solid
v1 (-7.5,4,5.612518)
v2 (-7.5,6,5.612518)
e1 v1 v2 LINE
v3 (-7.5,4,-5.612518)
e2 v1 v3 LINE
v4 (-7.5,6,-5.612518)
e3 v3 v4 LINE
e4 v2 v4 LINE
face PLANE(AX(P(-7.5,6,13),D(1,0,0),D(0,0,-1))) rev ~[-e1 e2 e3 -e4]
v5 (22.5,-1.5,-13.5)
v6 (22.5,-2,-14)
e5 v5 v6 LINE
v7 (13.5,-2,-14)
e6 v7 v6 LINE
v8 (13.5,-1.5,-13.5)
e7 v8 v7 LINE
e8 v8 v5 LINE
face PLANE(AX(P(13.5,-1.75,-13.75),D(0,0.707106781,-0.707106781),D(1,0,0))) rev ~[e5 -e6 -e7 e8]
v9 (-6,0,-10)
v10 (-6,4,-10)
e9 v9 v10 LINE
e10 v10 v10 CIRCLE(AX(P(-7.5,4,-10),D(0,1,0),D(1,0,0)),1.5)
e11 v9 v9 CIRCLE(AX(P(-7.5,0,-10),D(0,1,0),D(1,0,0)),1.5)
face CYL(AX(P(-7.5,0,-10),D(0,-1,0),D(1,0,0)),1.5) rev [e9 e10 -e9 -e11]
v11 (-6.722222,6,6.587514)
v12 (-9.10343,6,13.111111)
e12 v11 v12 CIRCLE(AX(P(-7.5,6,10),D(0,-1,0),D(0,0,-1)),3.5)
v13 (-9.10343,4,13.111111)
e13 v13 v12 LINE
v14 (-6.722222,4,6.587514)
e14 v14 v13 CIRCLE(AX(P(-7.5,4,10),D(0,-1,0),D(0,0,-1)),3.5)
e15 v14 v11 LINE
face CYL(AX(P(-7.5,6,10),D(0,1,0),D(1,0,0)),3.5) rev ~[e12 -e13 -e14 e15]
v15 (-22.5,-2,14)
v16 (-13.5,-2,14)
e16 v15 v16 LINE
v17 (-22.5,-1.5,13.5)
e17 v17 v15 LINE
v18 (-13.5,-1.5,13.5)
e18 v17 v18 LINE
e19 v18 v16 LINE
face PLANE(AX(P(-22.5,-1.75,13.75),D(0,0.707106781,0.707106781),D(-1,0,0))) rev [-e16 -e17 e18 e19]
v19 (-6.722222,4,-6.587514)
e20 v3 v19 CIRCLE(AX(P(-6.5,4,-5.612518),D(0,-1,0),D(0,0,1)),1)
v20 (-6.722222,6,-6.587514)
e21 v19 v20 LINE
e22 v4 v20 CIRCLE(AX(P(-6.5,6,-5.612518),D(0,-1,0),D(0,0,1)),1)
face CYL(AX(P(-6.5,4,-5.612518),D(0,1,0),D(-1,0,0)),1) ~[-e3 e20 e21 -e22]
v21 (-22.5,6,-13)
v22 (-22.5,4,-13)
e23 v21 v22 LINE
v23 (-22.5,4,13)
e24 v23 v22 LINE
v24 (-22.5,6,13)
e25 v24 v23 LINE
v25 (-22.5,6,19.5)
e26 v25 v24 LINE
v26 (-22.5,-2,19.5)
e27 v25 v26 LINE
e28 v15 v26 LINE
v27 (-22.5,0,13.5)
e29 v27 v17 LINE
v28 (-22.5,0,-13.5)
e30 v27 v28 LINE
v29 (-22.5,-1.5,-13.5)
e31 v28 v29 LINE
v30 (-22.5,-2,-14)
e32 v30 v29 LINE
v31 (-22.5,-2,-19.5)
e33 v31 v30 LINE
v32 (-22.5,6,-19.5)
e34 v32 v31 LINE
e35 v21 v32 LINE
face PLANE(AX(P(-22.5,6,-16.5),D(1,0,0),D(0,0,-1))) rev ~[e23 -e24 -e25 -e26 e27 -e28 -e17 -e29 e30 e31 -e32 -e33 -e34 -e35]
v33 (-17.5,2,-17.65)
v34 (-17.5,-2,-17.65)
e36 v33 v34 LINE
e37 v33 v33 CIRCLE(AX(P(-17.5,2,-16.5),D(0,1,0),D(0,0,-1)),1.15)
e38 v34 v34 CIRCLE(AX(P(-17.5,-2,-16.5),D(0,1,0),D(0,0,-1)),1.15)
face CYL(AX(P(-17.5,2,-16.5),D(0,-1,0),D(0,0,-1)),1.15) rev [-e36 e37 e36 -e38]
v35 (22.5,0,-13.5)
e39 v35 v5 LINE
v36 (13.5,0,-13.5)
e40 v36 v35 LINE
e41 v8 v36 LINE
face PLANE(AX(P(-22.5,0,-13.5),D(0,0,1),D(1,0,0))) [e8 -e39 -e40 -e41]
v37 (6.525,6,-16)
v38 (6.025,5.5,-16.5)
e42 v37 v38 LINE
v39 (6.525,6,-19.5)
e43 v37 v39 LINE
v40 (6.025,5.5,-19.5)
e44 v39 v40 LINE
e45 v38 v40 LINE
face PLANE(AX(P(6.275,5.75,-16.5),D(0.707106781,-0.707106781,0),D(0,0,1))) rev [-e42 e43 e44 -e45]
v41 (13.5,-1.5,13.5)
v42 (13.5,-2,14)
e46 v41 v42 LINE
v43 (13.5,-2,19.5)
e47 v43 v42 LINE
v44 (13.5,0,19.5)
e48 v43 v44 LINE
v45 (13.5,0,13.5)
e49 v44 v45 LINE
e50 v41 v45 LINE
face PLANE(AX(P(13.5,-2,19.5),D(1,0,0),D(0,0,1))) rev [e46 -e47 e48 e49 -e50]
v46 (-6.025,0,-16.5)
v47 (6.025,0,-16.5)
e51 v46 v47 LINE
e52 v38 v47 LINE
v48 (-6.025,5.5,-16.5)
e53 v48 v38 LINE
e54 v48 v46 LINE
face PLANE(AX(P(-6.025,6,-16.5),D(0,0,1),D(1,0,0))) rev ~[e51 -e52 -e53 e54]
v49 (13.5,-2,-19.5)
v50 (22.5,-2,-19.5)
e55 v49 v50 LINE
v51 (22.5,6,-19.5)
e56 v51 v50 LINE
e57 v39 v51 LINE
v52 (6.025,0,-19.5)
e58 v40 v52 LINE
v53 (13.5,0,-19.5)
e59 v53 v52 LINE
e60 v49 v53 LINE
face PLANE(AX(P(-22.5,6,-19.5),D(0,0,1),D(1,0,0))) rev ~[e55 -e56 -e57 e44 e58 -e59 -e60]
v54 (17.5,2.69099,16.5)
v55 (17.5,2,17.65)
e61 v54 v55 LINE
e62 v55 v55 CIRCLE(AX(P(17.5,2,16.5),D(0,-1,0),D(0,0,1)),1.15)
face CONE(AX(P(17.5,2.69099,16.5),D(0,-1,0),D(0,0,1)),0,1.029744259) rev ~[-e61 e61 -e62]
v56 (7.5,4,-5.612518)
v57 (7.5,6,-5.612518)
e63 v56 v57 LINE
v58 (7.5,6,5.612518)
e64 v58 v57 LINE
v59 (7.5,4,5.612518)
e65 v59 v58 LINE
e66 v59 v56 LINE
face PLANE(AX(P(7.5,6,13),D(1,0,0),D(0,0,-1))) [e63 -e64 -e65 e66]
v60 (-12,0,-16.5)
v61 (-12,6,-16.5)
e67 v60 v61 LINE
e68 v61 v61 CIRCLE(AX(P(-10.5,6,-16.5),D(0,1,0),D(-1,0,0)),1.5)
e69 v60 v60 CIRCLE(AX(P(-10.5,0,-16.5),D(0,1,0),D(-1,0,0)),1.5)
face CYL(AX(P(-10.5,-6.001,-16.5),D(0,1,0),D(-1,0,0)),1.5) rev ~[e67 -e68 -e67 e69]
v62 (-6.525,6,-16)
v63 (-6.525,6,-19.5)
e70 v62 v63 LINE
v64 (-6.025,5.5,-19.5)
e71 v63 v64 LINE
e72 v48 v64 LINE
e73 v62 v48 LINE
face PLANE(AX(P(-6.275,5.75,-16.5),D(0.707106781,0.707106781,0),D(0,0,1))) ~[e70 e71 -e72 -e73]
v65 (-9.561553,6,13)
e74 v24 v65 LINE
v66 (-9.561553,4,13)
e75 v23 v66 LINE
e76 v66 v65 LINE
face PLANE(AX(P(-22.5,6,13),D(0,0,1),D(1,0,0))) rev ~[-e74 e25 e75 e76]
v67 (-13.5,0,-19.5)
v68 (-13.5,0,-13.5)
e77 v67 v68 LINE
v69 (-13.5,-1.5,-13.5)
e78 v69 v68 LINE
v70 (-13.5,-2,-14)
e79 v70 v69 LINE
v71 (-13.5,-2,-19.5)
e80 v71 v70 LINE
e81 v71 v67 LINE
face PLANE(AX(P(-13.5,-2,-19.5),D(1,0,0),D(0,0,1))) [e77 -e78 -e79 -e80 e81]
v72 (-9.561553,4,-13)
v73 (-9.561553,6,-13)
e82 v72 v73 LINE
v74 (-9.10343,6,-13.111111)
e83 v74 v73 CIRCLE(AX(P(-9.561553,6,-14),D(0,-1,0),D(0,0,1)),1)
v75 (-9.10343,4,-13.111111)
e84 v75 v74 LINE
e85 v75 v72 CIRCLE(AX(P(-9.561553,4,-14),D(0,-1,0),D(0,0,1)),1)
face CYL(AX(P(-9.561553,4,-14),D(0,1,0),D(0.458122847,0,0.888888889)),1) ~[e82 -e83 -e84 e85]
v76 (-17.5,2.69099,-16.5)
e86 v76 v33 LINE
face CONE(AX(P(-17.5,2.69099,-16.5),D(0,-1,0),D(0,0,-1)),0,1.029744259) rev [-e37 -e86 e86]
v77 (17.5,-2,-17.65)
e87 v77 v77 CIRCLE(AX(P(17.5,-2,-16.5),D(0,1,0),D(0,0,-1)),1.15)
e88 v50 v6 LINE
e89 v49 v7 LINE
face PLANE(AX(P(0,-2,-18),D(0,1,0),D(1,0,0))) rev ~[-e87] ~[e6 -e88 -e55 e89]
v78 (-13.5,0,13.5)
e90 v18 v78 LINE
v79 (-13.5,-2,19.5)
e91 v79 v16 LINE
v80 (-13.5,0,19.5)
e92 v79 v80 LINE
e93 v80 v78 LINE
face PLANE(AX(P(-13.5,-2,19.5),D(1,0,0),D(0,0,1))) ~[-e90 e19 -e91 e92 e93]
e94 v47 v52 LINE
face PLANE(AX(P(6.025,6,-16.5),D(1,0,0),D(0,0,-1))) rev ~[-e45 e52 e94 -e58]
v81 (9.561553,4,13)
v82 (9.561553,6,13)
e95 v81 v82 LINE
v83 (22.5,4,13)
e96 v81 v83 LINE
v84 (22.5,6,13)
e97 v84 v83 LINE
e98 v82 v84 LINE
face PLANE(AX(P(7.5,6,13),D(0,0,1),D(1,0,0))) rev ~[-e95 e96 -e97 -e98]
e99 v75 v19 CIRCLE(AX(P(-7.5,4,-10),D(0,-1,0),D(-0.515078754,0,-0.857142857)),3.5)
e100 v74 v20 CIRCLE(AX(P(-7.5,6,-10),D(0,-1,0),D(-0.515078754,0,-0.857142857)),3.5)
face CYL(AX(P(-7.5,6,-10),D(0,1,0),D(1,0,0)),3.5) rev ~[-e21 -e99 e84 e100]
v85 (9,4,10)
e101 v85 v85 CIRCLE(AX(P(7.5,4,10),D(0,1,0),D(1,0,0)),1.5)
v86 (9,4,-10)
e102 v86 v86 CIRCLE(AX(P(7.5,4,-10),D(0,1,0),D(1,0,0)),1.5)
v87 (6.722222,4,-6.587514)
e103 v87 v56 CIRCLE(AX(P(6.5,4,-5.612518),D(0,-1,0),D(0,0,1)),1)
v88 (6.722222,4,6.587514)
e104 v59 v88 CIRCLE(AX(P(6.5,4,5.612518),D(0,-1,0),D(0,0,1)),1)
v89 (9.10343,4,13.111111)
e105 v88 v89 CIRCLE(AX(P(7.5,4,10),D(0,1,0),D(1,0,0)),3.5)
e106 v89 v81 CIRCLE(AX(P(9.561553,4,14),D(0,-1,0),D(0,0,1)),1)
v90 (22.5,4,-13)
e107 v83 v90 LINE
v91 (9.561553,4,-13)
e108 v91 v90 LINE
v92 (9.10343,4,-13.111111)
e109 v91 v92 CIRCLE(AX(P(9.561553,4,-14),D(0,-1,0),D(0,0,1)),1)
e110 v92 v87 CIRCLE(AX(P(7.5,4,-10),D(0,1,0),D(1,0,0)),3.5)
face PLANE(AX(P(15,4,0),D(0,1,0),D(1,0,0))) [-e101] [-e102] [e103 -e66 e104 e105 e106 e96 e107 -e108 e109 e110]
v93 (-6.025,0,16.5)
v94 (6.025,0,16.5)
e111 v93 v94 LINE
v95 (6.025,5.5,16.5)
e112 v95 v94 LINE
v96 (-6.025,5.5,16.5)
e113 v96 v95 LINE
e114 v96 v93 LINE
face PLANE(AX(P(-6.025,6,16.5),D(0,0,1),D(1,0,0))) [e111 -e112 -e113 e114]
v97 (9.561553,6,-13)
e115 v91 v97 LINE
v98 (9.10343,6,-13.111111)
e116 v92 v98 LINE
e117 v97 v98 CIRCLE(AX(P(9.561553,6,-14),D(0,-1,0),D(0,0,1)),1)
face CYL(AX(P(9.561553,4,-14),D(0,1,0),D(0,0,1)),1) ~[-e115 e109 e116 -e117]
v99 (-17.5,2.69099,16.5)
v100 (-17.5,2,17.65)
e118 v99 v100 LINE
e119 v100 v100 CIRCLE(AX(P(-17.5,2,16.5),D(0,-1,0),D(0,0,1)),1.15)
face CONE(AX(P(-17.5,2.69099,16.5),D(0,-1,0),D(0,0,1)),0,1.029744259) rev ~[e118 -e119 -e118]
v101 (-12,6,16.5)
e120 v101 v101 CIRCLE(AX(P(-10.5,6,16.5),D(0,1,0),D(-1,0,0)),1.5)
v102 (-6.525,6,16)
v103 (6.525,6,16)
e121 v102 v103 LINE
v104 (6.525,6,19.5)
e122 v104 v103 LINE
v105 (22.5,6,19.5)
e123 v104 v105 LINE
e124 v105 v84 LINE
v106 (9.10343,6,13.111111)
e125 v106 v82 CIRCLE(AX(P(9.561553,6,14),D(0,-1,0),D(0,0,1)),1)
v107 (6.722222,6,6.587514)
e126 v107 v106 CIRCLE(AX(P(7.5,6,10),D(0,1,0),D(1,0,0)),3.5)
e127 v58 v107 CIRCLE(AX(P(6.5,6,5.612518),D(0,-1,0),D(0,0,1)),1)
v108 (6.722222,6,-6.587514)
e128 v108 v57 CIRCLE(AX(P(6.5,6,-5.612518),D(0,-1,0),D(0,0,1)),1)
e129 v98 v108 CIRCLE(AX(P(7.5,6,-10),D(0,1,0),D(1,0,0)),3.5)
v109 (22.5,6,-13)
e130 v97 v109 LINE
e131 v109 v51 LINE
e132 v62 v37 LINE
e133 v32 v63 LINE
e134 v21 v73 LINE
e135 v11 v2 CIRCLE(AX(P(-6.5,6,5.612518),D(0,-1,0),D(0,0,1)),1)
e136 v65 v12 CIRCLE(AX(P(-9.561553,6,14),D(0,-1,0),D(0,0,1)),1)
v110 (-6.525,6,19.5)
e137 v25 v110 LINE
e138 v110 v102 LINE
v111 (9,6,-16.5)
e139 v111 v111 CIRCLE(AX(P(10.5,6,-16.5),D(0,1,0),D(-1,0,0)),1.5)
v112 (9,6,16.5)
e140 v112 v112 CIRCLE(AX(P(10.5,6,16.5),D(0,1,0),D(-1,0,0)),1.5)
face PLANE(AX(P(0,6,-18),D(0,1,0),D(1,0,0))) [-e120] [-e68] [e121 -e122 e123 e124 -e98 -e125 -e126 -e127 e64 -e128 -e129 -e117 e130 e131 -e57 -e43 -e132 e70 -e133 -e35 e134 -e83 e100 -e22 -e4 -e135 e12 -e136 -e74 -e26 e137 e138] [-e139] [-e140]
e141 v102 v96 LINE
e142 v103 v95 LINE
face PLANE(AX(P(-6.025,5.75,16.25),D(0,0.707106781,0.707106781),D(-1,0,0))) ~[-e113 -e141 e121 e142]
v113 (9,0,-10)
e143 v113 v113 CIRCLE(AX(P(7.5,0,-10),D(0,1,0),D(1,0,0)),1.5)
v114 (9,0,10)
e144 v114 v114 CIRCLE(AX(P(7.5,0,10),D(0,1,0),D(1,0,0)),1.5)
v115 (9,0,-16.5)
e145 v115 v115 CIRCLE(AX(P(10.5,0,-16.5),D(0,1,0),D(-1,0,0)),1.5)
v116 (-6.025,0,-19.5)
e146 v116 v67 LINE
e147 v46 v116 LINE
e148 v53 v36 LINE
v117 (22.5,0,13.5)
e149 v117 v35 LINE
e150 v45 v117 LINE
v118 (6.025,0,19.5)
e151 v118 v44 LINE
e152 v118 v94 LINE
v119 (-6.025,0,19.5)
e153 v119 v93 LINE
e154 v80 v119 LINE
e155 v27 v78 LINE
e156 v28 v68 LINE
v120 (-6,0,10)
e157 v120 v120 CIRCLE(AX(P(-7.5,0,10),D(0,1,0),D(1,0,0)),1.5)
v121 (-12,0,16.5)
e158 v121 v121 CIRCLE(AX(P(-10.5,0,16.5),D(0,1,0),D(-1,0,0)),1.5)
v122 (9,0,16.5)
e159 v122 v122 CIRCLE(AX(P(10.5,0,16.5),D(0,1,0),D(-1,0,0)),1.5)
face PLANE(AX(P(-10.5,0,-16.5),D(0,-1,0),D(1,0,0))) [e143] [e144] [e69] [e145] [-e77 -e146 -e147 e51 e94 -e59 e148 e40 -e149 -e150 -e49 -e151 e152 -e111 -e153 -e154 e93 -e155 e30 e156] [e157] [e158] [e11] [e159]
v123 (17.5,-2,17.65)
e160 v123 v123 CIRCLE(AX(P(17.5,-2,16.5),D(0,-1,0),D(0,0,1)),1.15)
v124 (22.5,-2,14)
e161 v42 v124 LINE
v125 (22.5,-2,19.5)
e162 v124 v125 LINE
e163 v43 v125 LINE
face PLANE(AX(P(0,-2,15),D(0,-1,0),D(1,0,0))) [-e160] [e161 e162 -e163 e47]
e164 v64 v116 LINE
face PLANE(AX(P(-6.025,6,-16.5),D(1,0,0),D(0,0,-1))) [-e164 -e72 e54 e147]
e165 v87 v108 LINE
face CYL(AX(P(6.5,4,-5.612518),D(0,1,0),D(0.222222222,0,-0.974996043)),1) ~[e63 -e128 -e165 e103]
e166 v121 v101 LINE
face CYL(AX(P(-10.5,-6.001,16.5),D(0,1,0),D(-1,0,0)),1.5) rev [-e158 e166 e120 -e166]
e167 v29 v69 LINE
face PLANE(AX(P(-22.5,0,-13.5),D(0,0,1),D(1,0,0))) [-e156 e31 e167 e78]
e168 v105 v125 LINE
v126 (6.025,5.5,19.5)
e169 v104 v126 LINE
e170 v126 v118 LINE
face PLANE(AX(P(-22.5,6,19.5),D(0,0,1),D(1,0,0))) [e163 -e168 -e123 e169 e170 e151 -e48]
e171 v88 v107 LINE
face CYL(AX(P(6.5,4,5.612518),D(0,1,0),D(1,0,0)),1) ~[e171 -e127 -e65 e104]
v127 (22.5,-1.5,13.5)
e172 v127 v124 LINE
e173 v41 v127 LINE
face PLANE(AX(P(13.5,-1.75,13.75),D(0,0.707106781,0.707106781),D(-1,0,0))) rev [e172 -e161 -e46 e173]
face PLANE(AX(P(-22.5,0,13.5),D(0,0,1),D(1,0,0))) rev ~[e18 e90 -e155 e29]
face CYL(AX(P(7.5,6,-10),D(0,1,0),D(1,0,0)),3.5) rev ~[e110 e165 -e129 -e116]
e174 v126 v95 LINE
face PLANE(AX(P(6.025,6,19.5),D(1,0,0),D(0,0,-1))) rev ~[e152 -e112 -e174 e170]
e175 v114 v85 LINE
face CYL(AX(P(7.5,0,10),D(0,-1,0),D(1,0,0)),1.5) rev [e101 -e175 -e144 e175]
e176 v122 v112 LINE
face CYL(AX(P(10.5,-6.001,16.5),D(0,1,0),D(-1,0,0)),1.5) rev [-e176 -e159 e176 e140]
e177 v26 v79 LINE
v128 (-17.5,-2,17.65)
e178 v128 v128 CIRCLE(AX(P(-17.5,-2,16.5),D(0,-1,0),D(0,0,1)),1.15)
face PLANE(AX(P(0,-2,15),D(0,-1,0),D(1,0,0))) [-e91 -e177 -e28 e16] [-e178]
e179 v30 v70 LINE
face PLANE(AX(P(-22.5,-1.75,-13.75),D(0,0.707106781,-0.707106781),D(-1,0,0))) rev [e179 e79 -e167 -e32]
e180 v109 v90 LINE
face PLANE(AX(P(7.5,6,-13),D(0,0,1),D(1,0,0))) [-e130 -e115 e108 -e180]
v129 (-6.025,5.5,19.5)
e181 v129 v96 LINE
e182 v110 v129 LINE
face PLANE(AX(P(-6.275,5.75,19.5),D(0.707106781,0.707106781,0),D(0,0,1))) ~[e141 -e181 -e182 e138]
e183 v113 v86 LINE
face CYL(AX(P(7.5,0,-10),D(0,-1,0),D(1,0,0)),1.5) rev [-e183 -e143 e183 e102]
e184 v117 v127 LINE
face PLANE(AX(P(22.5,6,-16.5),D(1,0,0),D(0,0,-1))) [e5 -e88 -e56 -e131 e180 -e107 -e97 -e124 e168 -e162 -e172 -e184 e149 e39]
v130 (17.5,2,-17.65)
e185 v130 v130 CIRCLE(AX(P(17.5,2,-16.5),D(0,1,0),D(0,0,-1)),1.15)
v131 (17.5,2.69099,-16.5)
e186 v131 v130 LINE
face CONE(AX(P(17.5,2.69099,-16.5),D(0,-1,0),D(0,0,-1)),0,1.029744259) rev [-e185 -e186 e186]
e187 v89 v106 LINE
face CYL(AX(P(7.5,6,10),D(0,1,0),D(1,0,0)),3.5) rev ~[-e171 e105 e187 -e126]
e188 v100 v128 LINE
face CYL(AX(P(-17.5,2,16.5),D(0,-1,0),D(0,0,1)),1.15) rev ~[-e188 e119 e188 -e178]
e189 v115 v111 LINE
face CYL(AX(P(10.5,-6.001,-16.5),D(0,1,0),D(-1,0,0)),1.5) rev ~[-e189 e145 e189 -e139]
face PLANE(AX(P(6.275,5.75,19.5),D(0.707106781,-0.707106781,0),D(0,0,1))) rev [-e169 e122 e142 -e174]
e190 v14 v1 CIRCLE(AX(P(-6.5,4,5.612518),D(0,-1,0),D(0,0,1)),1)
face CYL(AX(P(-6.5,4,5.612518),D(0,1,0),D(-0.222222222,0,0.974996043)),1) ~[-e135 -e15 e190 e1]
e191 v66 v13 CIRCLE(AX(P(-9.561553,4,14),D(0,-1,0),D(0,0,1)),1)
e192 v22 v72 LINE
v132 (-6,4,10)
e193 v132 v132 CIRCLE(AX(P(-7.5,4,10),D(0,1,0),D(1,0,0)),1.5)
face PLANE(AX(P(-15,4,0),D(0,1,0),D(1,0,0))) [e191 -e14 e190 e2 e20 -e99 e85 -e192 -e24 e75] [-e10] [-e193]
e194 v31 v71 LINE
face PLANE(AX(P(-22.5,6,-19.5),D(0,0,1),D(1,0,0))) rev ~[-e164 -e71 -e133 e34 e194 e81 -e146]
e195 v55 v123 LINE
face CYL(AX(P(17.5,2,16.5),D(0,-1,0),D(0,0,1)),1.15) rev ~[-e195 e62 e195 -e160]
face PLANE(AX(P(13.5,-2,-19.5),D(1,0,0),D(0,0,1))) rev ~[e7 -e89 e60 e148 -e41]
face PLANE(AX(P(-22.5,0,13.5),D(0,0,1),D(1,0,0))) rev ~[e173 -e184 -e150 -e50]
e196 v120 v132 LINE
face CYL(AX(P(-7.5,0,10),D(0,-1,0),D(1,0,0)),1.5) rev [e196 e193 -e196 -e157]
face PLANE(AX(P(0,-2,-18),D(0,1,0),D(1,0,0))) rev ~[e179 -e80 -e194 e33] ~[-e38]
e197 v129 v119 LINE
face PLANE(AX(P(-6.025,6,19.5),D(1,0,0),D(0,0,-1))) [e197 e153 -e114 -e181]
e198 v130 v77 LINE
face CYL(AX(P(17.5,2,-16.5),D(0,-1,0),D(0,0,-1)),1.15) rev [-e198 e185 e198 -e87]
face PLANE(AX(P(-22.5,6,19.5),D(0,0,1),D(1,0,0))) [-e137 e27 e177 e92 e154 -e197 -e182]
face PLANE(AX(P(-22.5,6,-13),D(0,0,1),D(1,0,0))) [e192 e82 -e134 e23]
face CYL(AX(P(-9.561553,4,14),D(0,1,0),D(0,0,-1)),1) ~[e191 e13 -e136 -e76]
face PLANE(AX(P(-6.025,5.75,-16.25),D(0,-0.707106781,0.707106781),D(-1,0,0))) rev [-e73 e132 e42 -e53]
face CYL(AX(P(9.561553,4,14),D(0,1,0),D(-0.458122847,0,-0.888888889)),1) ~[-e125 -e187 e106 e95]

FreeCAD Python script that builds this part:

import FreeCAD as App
import Part
import Sketcher

V = App.Vector
Q = App.Units.Quantity


def edges_at(feature, points):
    """Names of the edges that pass closest to the given points."""
    edges = feature.Shape.Edges
    near = lambda p: min(range(len(edges)), key=lambda i: edges[i].distToShape(Part.Vertex(*p))[0])
    return sorted({f"Edge{near(p) + 1}" for p in points})

doc = App.newDocument("Part")
params = doc.addObject("Spreadsheet::Sheet", "Params")
for row, (alias, value) in enumerate([
    ("sketch1_diameter", "3 mm"),
    ("sketch1_width", "45 mm"),
    ("sketch1_height", "33 mm"),
    ("pad1_length", "6 mm"),
    ("sketch2_width", "45 mm"),
    ("sketch2_height", "3 mm"),
    ("pad2_length", "2 mm"),
    ("sketch3_diameter", "7 mm"),
    ("pocket1_length", "2 mm"),
    ("sketch4_width", "45 mm"),
    ("sketch4_height", "3 mm"),
    ("pad3_length", "8 mm"),
    ("sketch5_height", "3 mm"),
    ("sketch5_width", "12.05 mm"),
    ("sketch6_height", "3 mm"),
    ("sketch6_width", "12.05 mm"),
    ("chamfer_size", "0.5 mm"),
    ("sketch7_width", "4 mm"),
    ("sketch7_height", "1.15 mm"),
    ("groove_angle", "360 deg"),
    ("sketch8_width", "4 mm"),
    ("sketch8_height", "1.15 mm"),
    ("groove2_angle", "360 deg"),
    ("sketch9_width", "6 mm"),
    ("pocket4_length", "2 mm"),
    ("sketch10_diameter", "3 mm"),
    ("hole_diameter", "3 mm"),
    ("hole_depth", "6.001 mm"),
    ("chamfer2_size", "0.5 mm"),
    ("sketch11_width", "15 mm"),
    ("sketch11_height", "26 mm"),
    ("pocket5_length", "2 mm"),
    ("fillet_radius", "1 mm"),
    ("sketch12_width", "15 mm"),
    ("sketch12_height", "6 mm"),
    ("pocket6_length", "2 mm"),
], start=1):
    params.set(f"A{row}", alias)
    params.set(f"B{row}", "=" + value)
    params.setAlias(f"B{row}", alias)

body = doc.addObject("PartDesign::Body", "Body")

# Sketch on XZ plane
sketch1 = body.newObject("Sketcher::SketchObject", "Sketch")
sketch1.AttachmentSupport = (doc.getObject("XZ_Plane"), [""])
sketch1.MapMode = "FlatFace"
sketch1.addGeometry([
    Part.LineSegment(V(-22.5, -16.5, 0), V(-22.5, 16.5, 0)),  # 0
    Part.LineSegment(V(-22.5, 16.5, 0), V(22.5, 16.5, 0)),  # 1
    Part.LineSegment(V(22.5, 16.5, 0), V(22.5, -16.5, 0)),  # 2
    Part.LineSegment(V(22.5, -16.5, 0), V(-22.5, -16.5, 0)),  # 3
    Part.Circle(V(-7.5, 10, 0), V(0, 0, 1), 1.5),  # 4
    Part.Circle(V(7.5, 10, 0), V(0, 0, 1), 1.5),  # 5
    Part.Circle(V(-7.5, -10, 0), V(0, 0, 1), 1.5),  # 6
    Part.Circle(V(7.5, -10, 0), V(0, 0, 1), 1.5),  # 7
], False)
sketch1.addConstraint([
    Sketcher.Constraint("Coincident", 0, 2, 1, 1),
    Sketcher.Constraint("Coincident", 1, 2, 2, 1),
    Sketcher.Constraint("Coincident", 2, 2, 3, 1),
    Sketcher.Constraint("Coincident", 3, 2, 0, 1),
    Sketcher.Constraint("Vertical", 0),
    Sketcher.Constraint("Horizontal", 1),
    Sketcher.Constraint("Vertical", 2),
    Sketcher.Constraint("Horizontal", 3),
    Sketcher.Constraint("Equal", 4, 5),
    Sketcher.Constraint("Equal", 5, 6),
    Sketcher.Constraint("Equal", 6, 7),
    Sketcher.Constraint("Symmetric", 5, 3, 6, 3, -1, 1),
    Sketcher.Constraint("Symmetric", 4, 3, 7, 3, -1, 1),
    Sketcher.Constraint("Symmetric", 0, 2, 2, 2, -1, 1),
    Sketcher.Constraint("Symmetric", 4, 3, 5, 3, -2),
    Sketcher.Constraint("Diameter", 4, 3.0),
    Sketcher.Constraint("DistanceX", 1, 1, 1, 2, 45.0),
    Sketcher.Constraint("DistanceY", 0, 1, 0, 2, 33.0),
    Sketcher.Constraint("DistanceY", -1, 1, 4, 3, 10.0),
    Sketcher.Constraint("DistanceX", 4, 3, 5, 3, 15.0),
])
sketch1.setExpression("Constraints[15]", "Params.sketch1_diameter")
sketch1.setExpression("Constraints[16]", "Params.sketch1_width")
sketch1.setExpression("Constraints[17]", "Params.sketch1_height")
pad1 = body.newObject("PartDesign::Pad", "Pad")
pad1.Profile = sketch1
pad1.setExpression("Length", "Params.pad1_length")
pad1.Reversed = True

# Sketch on XZ plane
sketch2 = body.newObject("Sketcher::SketchObject", "Sketch001")
sketch2.AttachmentSupport = (doc.getObject("XZ_Plane"), [""])
sketch2.MapMode = "FlatFace"
sketch2.addGeometry([
    Part.LineSegment(V(-22.5, -13.5, 0), V(-22.5, -16.5, 0)),  # 0
    Part.LineSegment(V(-22.5, -16.5, 0), V(22.5, -16.5, 0)),  # 1
    Part.LineSegment(V(22.5, -16.5, 0), V(22.5, -13.5, 0)),  # 2
    Part.LineSegment(V(22.5, -13.5, 0), V(-22.5, -13.5, 0)),  # 3
    Part.LineSegment(V(-22.5, 16.5, 0), V(-22.5, 13.5, 0)),  # 4
    Part.LineSegment(V(-22.5, 13.5, 0), V(22.5, 13.5, 0)),  # 5
    Part.LineSegment(V(22.5, 13.5, 0), V(22.5, 16.5, 0)),  # 6
    Part.LineSegment(V(22.5, 16.5, 0), V(-22.5, 16.5, 0)),  # 7
], False)
sketch2.addConstraint([
    Sketcher.Constraint("Coincident", 0, 2, 1, 1),
    Sketcher.Constraint("Coincident", 1, 2, 2, 1),
    Sketcher.Constraint("Coincident", 2, 2, 3, 1),
    Sketcher.Constraint("Coincident", 3, 2, 0, 1),
    Sketcher.Constraint("Coincident", 4, 2, 5, 1),
    Sketcher.Constraint("Coincident", 5, 2, 6, 1),
    Sketcher.Constraint("Coincident", 6, 2, 7, 1),
    Sketcher.Constraint("Coincident", 7, 2, 4, 1),
    Sketcher.Constraint("Vertical", 0),
    Sketcher.Constraint("Horizontal", 1),
    Sketcher.Constraint("Vertical", 2),
    Sketcher.Constraint("Horizontal", 3),
    Sketcher.Constraint("Vertical", 4),
    Sketcher.Constraint("Horizontal", 5),
    Sketcher.Constraint("Vertical", 6),
    Sketcher.Constraint("Horizontal", 7),
    Sketcher.Constraint("Symmetric", 2, 2, 4, 2, -1, 1),
    Sketcher.Constraint("Symmetric", 0, 2, 6, 2, -1, 1),
    Sketcher.Constraint("Vertical", 3, 2, 4, 2),
    Sketcher.Constraint("DistanceX", 1, 1, 1, 2, 45.0),
    Sketcher.Constraint("DistanceY", 0, 2, 0, 1, 3.0),
    Sketcher.Constraint("DistanceY", 3, 2, 4, 2, 27.0),
])
sketch2.setExpression("Constraints[19]", "Params.sketch2_width")
sketch2.setExpression("Constraints[20]", "Params.sketch2_height")
pad2 = body.newObject("PartDesign::Pad", "Pad001")
pad2.Profile = sketch2
pad2.setExpression("Length", "Params.pad2_length")

# Sketch on XZ plane
sketch3 = body.newObject("Sketcher::SketchObject", "Sketch002")
sketch3.AttachmentSupport = (doc.getObject("XZ_Plane"), [""])
sketch3.MapMode = "FlatFace"
sketch3.AttachmentOffset = App.Placement(V(0, 0, -6), App.Rotation())
sketch3.addGeometry([
    Part.Circle(V(-7.5, -10, 0), V(0, 0, 1), 3.5),
    Part.Circle(V(7.5, -10, 0), V(0, 0, 1), 3.5),
    Part.Circle(V(7.5, 10, 0), V(0, 0, 1), 3.5),
    Part.Circle(V(-7.5, 10, 0), V(0, 0, 1), 3.5),
], False)
sketch3.addConstraint([
    Sketcher.Constraint("Equal", 0, 1),
    Sketcher.Constraint("Equal", 1, 2),
    Sketcher.Constraint("Equal", 2, 3),
    Sketcher.Constraint("Symmetric", 0, 3, 2, 3, -1, 1),
    Sketcher.Constraint("Symmetric", 1, 3, 3, 3, -1, 1),
    Sketcher.Constraint("Symmetric", 0, 3, 1, 3, -2),
    Sketcher.Constraint("Diameter", 0, 7.0),
    Sketcher.Constraint("DistanceY", 0, 3, -1, 1, 10.0),
    Sketcher.Constraint("DistanceX", 0, 3, 1, 3, 15.0),
])
sketch3.setExpression("Constraints[6]", "Params.sketch3_diameter")
pocket1 = body.newObject("PartDesign::Pocket", "Pocket")
pocket1.Profile = sketch3
pocket1.setExpression("Length", "Params.pocket1_length")
pocket1.Reversed = True

# Sketch on XZ plane
sketch4 = body.newObject("Sketcher::SketchObject", "Sketch003")
sketch4.AttachmentSupport = (doc.getObject("XZ_Plane"), [""])
sketch4.MapMode = "FlatFace"
sketch4.AttachmentOffset = App.Placement(V(0, 0, -6), App.Rotation())
sketch4.addGeometry([
    Part.LineSegment(V(-22.5, -19.5, 0), V(-22.5, -16.5, 0)),  # 0
    Part.LineSegment(V(-22.5, -16.5, 0), V(22.5, -16.5, 0)),  # 1
    Part.LineSegment(V(22.5, -16.5, 0), V(22.5, -19.5, 0)),  # 2
    Part.LineSegment(V(22.5, -19.5, 0), V(-22.5, -19.5, 0)),  # 3
    Part.LineSegment(V(-22.5, 16.5, 0), V(-22.5, 19.5, 0)),  # 4
    Part.LineSegment(V(-22.5, 19.5, 0), V(22.5, 19.5, 0)),  # 5
    Part.LineSegment(V(22.5, 19.5, 0), V(22.5, 16.5, 0)),  # 6
    Part.LineSegment(V(22.5, 16.5, 0), V(-22.5, 16.5, 0)),  # 7
], False)
sketch4.addConstraint([
    Sketcher.Constraint("Coincident", 0, 2, 1, 1),
    Sketcher.Constraint("Coincident", 1, 2, 2, 1),
    Sketcher.Constraint("Coincident", 2, 2, 3, 1),
    Sketcher.Constraint("Coincident", 3, 2, 0, 1),
    Sketcher.Constraint("Coincident", 4, 2, 5, 1),
    Sketcher.Constraint("Coincident", 5, 2, 6, 1),
    Sketcher.Constraint("Coincident", 6, 2, 7, 1),
    Sketcher.Constraint("Coincident", 7, 2, 4, 1),
    Sketcher.Constraint("Vertical", 0),
    Sketcher.Constraint("Horizontal", 1),
    Sketcher.Constraint("Vertical", 2),
    Sketcher.Constraint("Horizontal", 3),
    Sketcher.Constraint("Vertical", 4),
    Sketcher.Constraint("Horizontal", 5),
    Sketcher.Constraint("Vertical", 6),
    Sketcher.Constraint("Horizontal", 7),
    Sketcher.Constraint("Symmetric", 2, 2, 4, 2, -1, 1),
    Sketcher.Constraint("Symmetric", 0, 2, 6, 2, -1, 1),
    Sketcher.Constraint("Vertical", 3, 2, 4, 2),
    Sketcher.Constraint("DistanceX", 1, 1, 1, 2, 45.0),
    Sketcher.Constraint("DistanceY", 0, 1, 0, 2, 3.0),
    Sketcher.Constraint("DistanceY", 0, 2, 4, 2, 36.0),
])
sketch4.setExpression("Constraints[19]", "Params.sketch4_width")
sketch4.setExpression("Constraints[20]", "Params.sketch4_height")
pad3 = body.newObject("PartDesign::Pad", "Pad002")
pad3.Profile = sketch4
pad3.setExpression("Length", "Params.pad3_length")

# Sketch on XZ plane
sketch5 = body.newObject("Sketcher::SketchObject", "Sketch004")
sketch5.AttachmentSupport = (doc.getObject("XZ_Plane"), [""])
sketch5.MapMode = "FlatFace"
sketch5.AttachmentOffset = App.Placement(V(0, 0, -6), App.Rotation())
sketch5.addGeometry([
    Part.LineSegment(V(-6.025, -19.5, 0), V(-6.025, -16.5, 0)),
    Part.LineSegment(V(-6.025, -16.5, 0), V(6.025, -16.5, 0)),
    Part.LineSegment(V(6.025, -16.5, 0), V(6.025, -19.5, 0)),
    Part.LineSegment(V(6.025, -19.5, 0), V(-6.025, -19.5, 0)),
], False)
sketch5.addConstraint([
    Sketcher.Constraint("Coincident", 0, 2, 1, 1),
    Sketcher.Constraint("Coincident", 1, 2, 2, 1),
    Sketcher.Constraint("Coincident", 2, 2, 3, 1),
    Sketcher.Constraint("Coincident", 3, 2, 0, 1),
    Sketcher.Constraint("Vertical", 0),
    Sketcher.Constraint("Horizontal", 1),
    Sketcher.Constraint("Vertical", 2),
    Sketcher.Constraint("Horizontal", 3),
    Sketcher.Constraint("DistanceY", 0, 1, 0, 2, 3.0),
    Sketcher.Constraint("DistanceX", 1, 1, 1, 2, 12.05),
    Sketcher.Constraint("DistanceY", 0, 2, -1, 1, 16.5),
    Sketcher.Constraint("DistanceX", 0, 2, -1, 1, 6.025),
])
sketch5.setExpression("Constraints[8]", "Params.sketch5_height")
sketch5.setExpression("Constraints[9]", "Params.sketch5_width")
pocket2 = body.newObject("PartDesign::Pocket", "Pocket001")
pocket2.Profile = sketch5
pocket2.Type = "UpToFirst"
pocket2.Reversed = True

# Sketch on XZ plane
sketch6 = body.newObject("Sketcher::SketchObject", "Sketch005")
sketch6.AttachmentSupport = (doc.getObject("XZ_Plane"), [""])
sketch6.MapMode = "FlatFace"
sketch6.AttachmentOffset = App.Placement(V(0, 0, -6), App.Rotation())
sketch6.addGeometry([
    Part.LineSegment(V(-6.025, 16.5, 0), V(-6.025, 19.5, 0)),
    Part.LineSegment(V(-6.025, 19.5, 0), V(6.025, 19.5, 0)),
    Part.LineSegment(V(6.025, 19.5, 0), V(6.025, 16.5, 0)),
    Part.LineSegment(V(6.025, 16.5, 0), V(-6.025, 16.5, 0)),
], False)
sketch6.addConstraint([
    Sketcher.Constraint("Coincident", 0, 2, 1, 1),
    Sketcher.Constraint("Coincident", 1, 2, 2, 1),
    Sketcher.Constraint("Coincident", 2, 2, 3, 1),
    Sketcher.Constraint("Coincident", 3, 2, 0, 1),
    Sketcher.Constraint("Vertical", 0),
    Sketcher.Constraint("Horizontal", 1),
    Sketcher.Constraint("Vertical", 2),
    Sketcher.Constraint("Horizontal", 3),
    Sketcher.Constraint("DistanceY", 0, 1, 0, 2, 3.0),
    Sketcher.Constraint("DistanceX", 1, 1, 1, 2, 12.05),
    Sketcher.Constraint("DistanceY", -1, 1, 0, 2, 19.5),
    Sketcher.Constraint("DistanceX", 0, 2, -1, 1, 6.025),
])
sketch6.setExpression("Constraints[8]", "Params.sketch6_height")
sketch6.setExpression("Constraints[9]", "Params.sketch6_width")
pocket3 = body.newObject("PartDesign::Pocket", "Pocket002")
pocket3.Profile = sketch6
pocket3.Type = "UpToFirst"
pocket3.Reversed = True
doc.recompute()

chamfer = body.newObject("PartDesign::Chamfer", "Chamfer")
chamfer.Base = (pocket3, edges_at(pocket3, [
    (-6.025, 6, -18),
    (0, 6, -16.5),
    (6.025, 6, -18),
    (6.025, 6, 18),
    (0, 6, 16.5),
    (-6.025, 6, 18),
]))
chamfer.setExpression("Size", "Params.chamfer_size")

# Sketch on YZ plane
sketch7 = body.newObject("Sketcher::SketchObject", "Sketch006")
sketch7.AttachmentSupport = (doc.getObject("YZ_Plane"), [""])
sketch7.MapMode = "FlatFace"
sketch7.AttachmentOffset = App.Placement(V(0, 0, -17.5), App.Rotation())
sketch7.addGeometry([
    Part.LineSegment(V(2.69099, -16.5, 0), V(-2, -16.5, 0)),
    Part.LineSegment(V(-2, -16.5, 0), V(-2, -17.65, 0)),
    Part.LineSegment(V(-2, -17.65, 0), V(2, -17.65, 0)),
    Part.LineSegment(V(2, -17.65, 0), V(2.69099, -16.5, 0)),
], False)
sketch7.addGeometry(Part.LineSegment(V(-2, -16.5, 0), V(2.69099, -16.5, 0)), True)  # axis
sketch7.addConstraint([
    Sketcher.Constraint("Coincident", 0, 2, 1, 1),
    Sketcher.Constraint("Coincident", 1, 2, 2, 1),
    Sketcher.Constraint("Coincident", 2, 2, 3, 1),
    Sketcher.Constraint("Coincident", 3, 2, 0, 1),
    Sketcher.Constraint("Horizontal", 0),
    Sketcher.Constraint("Vertical", 1),
    Sketcher.Constraint("Horizontal", 2),
    Sketcher.Constraint("Horizontal", 4),
    Sketcher.Constraint("Coincident", 4, 1, 0, 2),
    Sketcher.Constraint("Equal", 0, 4),
    Sketcher.Constraint("DistanceX", 2, 1, 2, 2, 4.0),
    Sketcher.Constraint("Angle", 3, Q("59 deg")),
    Sketcher.Constraint("DistanceX", 0, 2, -1, 1, 2.0),
    Sketcher.Constraint("DistanceY", 1, 2, 1, 1, 1.15),
    Sketcher.Constraint("DistanceY", 0, 2, -1, 1, 16.5),
])
sketch7.setExpression("Constraints[10]", "Params.sketch7_width")
sketch7.setExpression("Constraints[13]", "Params.sketch7_height")
groove = body.newObject("PartDesign::Groove", "Groove")
groove.Profile = sketch7
groove.ReferenceAxis = (sketch7, ["Axis0"])
groove.setExpression("Angle", "Params.groove_angle")

# Sketch on YZ plane
sketch8 = body.newObject("Sketcher::SketchObject", "Sketch007")
sketch8.AttachmentSupport = (doc.getObject("YZ_Plane"), [""])
sketch8.MapMode = "FlatFace"
sketch8.AttachmentOffset = App.Placement(V(0, 0, 17.5), App.Rotation())
sketch8.addGeometry([
    Part.LineSegment(V(2.69099, -16.5, 0), V(-2, -16.5, 0)),
    Part.LineSegment(V(-2, -16.5, 0), V(-2, -17.65, 0)),
    Part.LineSegment(V(-2, -17.65, 0), V(2, -17.65, 0)),
    Part.LineSegment(V(2, -17.65, 0), V(2.69099, -16.5, 0)),
], False)
sketch8.addGeometry(Part.LineSegment(V(-2, -16.5, 0), V(2.69099, -16.5, 0)), True)  # axis
sketch8.addConstraint([
    Sketcher.Constraint("Coincident", 0, 2, 1, 1),
    Sketcher.Constraint("Coincident", 1, 2, 2, 1),
    Sketcher.Constraint("Coincident", 2, 2, 3, 1),
    Sketcher.Constraint("Coincident", 3, 2, 0, 1),
    Sketcher.Constraint("Horizontal", 0),
    Sketcher.Constraint("Vertical", 1),
    Sketcher.Constraint("Horizontal", 2),
    Sketcher.Constraint("Horizontal", 4),
    Sketcher.Constraint("Coincident", 4, 1, 0, 2),
    Sketcher.Constraint("Equal", 0, 4),
    Sketcher.Constraint("DistanceX", 2, 1, 2, 2, 4.0),
    Sketcher.Constraint("Angle", 3, Q("59 deg")),
    Sketcher.Constraint("DistanceX", 0, 2, -1, 1, 2.0),
    Sketcher.Constraint("DistanceY", 1, 2, 1, 1, 1.15),
    Sketcher.Constraint("DistanceY", 0, 2, -1, 1, 16.5),
])
sketch8.setExpression("Constraints[10]", "Params.sketch8_width")
sketch8.setExpression("Constraints[13]", "Params.sketch8_height")
groove2 = body.newObject("PartDesign::Groove", "Groove001")
groove2.Profile = sketch8
groove2.ReferenceAxis = (sketch8, ["Axis0"])
groove2.setExpression("Angle", "Params.groove2_angle")

# Sketch on XZ plane
sketch9 = body.newObject("Sketcher::SketchObject", "Sketch008")
sketch9.AttachmentSupport = (doc.getObject("XZ_Plane"), [""])
sketch9.MapMode = "FlatFace"
sketch9.AttachmentOffset = App.Placement(V(0, 0, 2), App.Rotation())
sketch9.addGeometry([
    Part.LineSegment(V(-13.5, -13.5, 0), V(-13.5, -19.5, 0)),  # 0
    Part.LineSegment(V(-13.5, -19.5, 0), V(-7.5, -19.5, 0)),  # 1
    Part.LineSegment(V(-7.5, -19.5, 0), V(-7.5, -13.5, 0)),  # 2
    Part.LineSegment(V(-7.5, -13.5, 0), V(-13.5, -13.5, 0)),  # 3
    Part.LineSegment(V(7.5, -13.5, 0), V(7.5, -19.5, 0)),  # 4
    Part.LineSegment(V(7.5, -19.5, 0), V(13.5, -19.5, 0)),  # 5
    Part.LineSegment(V(13.5, -19.5, 0), V(13.5, -13.5, 0)),  # 6
    Part.LineSegment(V(13.5, -13.5, 0), V(7.5, -13.5, 0)),  # 7
], False)
sketch9.addConstraint([
    Sketcher.Constraint("Coincident", 0, 2, 1, 1),
    Sketcher.Constraint("Coincident", 1, 2, 2, 1),
    Sketcher.Constraint("Coincident", 2, 2, 3, 1),
    Sketcher.Constraint("Coincident", 3, 2, 0, 1),
    Sketcher.Constraint("Coincident", 4, 2, 5, 1),
    Sketcher.Constraint("Coincident", 5, 2, 6, 1),
    Sketcher.Constraint("Coincident", 6, 2, 7, 1),
    Sketcher.Constraint("Coincident", 7, 2, 4, 1),
    Sketcher.Constraint("Vertical", 0),
    Sketcher.Constraint("Horizontal", 1),
    Sketcher.Constraint("Vertical", 2),
    Sketcher.Constraint("Horizontal", 3),
    Sketcher.Constraint("Vertical", 4),
    Sketcher.Constraint("Horizontal", 5),
    Sketcher.Constraint("Vertical", 6),
    Sketcher.Constraint("Horizontal", 7),
    Sketcher.Constraint("Symmetric", 1, 2, 4, 2, -2),
    Sketcher.Constraint("Symmetric", 3, 2, 6, 2, -2),
    Sketcher.Constraint("Equal", 7, 0),
    Sketcher.Constraint("DistanceX", 1, 1, 1, 2, 6.0),
    Sketcher.Constraint("DistanceX", 1, 2, 4, 2, 15.0),
    Sketcher.Constraint("DistanceY", 0, 2, -1, 1, 19.5),
])
sketch9.setExpression("Constraints[19]", "Params.sketch9_width")
pocket4 = body.newObject("PartDesign::Pocket", "Pocket003")
pocket4.Profile = sketch9
pocket4.setExpression("Length", "Params.pocket4_length")

# Sketch on XZ plane
sketch10 = body.newObject("Sketcher::SketchObject", "Sketch009")
sketch10.AttachmentSupport = (doc.getObject("XZ_Plane"), [""])
sketch10.MapMode = "FlatFace"
sketch10.addGeometry([
    Part.Circle(V(-10.5, -16.5, 0), V(0, 0, 1), 1.5),
    Part.Circle(V(10.5, -16.5, 0), V(0, 0, 1), 1.5),
], False)
sketch10.addConstraint([
    Sketcher.Constraint("Equal", 0, 1),
    Sketcher.Constraint("Symmetric", 0, 3, 1, 3, -2),
    Sketcher.Constraint("Diameter", 0, 3.0),
    Sketcher.Constraint("DistanceX", 0, 3, 1, 3, 21.0),
    Sketcher.Constraint("DistanceY", 0, 3, -1, 1, 16.5),
])
sketch10.setExpression("Constraints[2]", "Params.sketch10_diameter")
doc.recompute()
hole = body.newObject("PartDesign::Hole", "Hole")
hole.Profile = sketch10
hole.ThreadType = "None"
hole.setExpression("Diameter", "Params.hole_diameter")
hole.DepthType = "Dimension"
hole.setExpression("Depth", "Params.hole_depth")
hole.DrillPoint = "Flat"
doc.recompute()

mirrored = body.newObject("PartDesign::Mirrored", "Mirrored")
mirrored.Originals = [groove, groove2, pocket4, hole]
mirrored.MirrorPlane = (doc.getObject("XY_Plane"), [""])
body.Tip = mirrored
doc.recompute()

chamfer2 = body.newObject("PartDesign::Chamfer", "Chamfer001")
chamfer2.Base = (mirrored, edges_at(mirrored, [
    (-18, -2, -13.5),
    (0, -2, -13.5),
    (0, -2, 13.5),
    (18, -2, 13.5),
    (18, -2, -13.5),
    (-18, -2, 13.5),
]))
chamfer2.setExpression("Size", "Params.chamfer2_size")

# Sketch on XZ plane
sketch11 = body.newObject("Sketcher::SketchObject", "Sketch010")
sketch11.AttachmentSupport = (doc.getObject("XZ_Plane"), [""])
sketch11.MapMode = "FlatFace"
sketch11.AttachmentOffset = App.Placement(V(0, 0, -6), App.Rotation())
sketch11.addGeometry([
    Part.LineSegment(V(7.5, -13, 0), V(7.5, 13, 0)),  # 0
    Part.LineSegment(V(7.5, 13, 0), V(22.5, 13, 0)),  # 1
    Part.LineSegment(V(22.5, 13, 0), V(22.5, -13, 0)),  # 2
    Part.LineSegment(V(22.5, -13, 0), V(7.5, -13, 0)),  # 3
    Part.LineSegment(V(-22.5, -13, 0), V(-22.5, 13, 0)),  # 4
    Part.LineSegment(V(-22.5, 13, 0), V(-7.5, 13, 0)),  # 5
    Part.LineSegment(V(-7.5, 13, 0), V(-7.5, -13, 0)),  # 6
    Part.LineSegment(V(-7.5, -13, 0), V(-22.5, -13, 0)),  # 7
], False)
sketch11.addConstraint([
    Sketcher.Constraint("Coincident", 0, 2, 1, 1),
    Sketcher.Constraint("Coincident", 1, 2, 2, 1),
    Sketcher.Constraint("Coincident", 2, 2, 3, 1),
    Sketcher.Constraint("Coincident", 3, 2, 0, 1),
    Sketcher.Constraint("Coincident", 4, 2, 5, 1),
    Sketcher.Constraint("Coincident", 5, 2, 6, 1),
    Sketcher.Constraint("Coincident", 6, 2, 7, 1),
    Sketcher.Constraint("Coincident", 7, 2, 4, 1),
    Sketcher.Constraint("Vertical", 0),
    Sketcher.Constraint("Horizontal", 1),
    Sketcher.Constraint("Vertical", 2),
    Sketcher.Constraint("Horizontal", 3),
    Sketcher.Constraint("Vertical", 4),
    Sketcher.Constraint("Horizontal", 5),
    Sketcher.Constraint("Vertical", 6),
    Sketcher.Constraint("Horizontal", 7),
    Sketcher.Constraint("Symmetric", 2, 2, 4, 2, -1, 1),
    Sketcher.Constraint("Symmetric", 0, 2, 6, 2, -1, 1),
    Sketcher.Constraint("Horizontal", 1, 2, 4, 2),
    Sketcher.Constraint("DistanceX", 1, 1, 1, 2, 15.0),
    Sketcher.Constraint("DistanceY", 0, 1, 0, 2, 26.0),
    Sketcher.Constraint("DistanceX", 4, 2, 0, 2, 30.0),
])
sketch11.setExpression("Constraints[19]", "Params.sketch11_width")
sketch11.setExpression("Constraints[20]", "Params.sketch11_height")
pocket5 = body.newObject("PartDesign::Pocket", "Pocket004")
pocket5.Profile = sketch11
pocket5.setExpression("Length", "Params.pocket5_length")
pocket5.Reversed = True
doc.recompute()

fillet = body.newObject("PartDesign::Fillet", "Fillet")
fillet.Base = (pocket5, edges_at(pocket5, [
    (9.303, 5, 13),
    (7.5, 5, 6.5),
    (7.5, 5, -6.5),
    (9.303, 5, -13),
    (-9.303, 5, -13),
    (-7.5, 5, -6.5),
    (-7.5, 5, 6.5),
    (-9.303, 5, 13),
]))
fillet.setExpression("Radius", "Params.fillet_radius")

# Sketch on XZ plane
sketch12 = body.newObject("Sketcher::SketchObject", "Sketch011")
sketch12.AttachmentSupport = (doc.getObject("XZ_Plane"), [""])
sketch12.MapMode = "FlatFace"
sketch12.AttachmentOffset = App.Placement(V(0, 0, 2), App.Rotation())
sketch12.addGeometry([
    Part.LineSegment(V(-7.5, 19.5, 0), V(-7.5, 13.5, 0)),  # 0
    Part.LineSegment(V(-7.5, 13.5, 0), V(7.5, 13.5, 0)),  # 1
    Part.LineSegment(V(7.5, 13.5, 0), V(7.5, 19.5, 0)),  # 2
    Part.LineSegment(V(7.5, 19.5, 0), V(-7.5, 19.5, 0)),  # 3
    Part.LineSegment(V(-7.5, -13.5, 0), V(-7.5, -19.5, 0)),  # 4
    Part.LineSegment(V(-7.5, -19.5, 0), V(7.5, -19.5, 0)),  # 5
    Part.LineSegment(V(7.5, -19.5, 0), V(7.5, -13.5, 0)),  # 6
    Part.LineSegment(V(7.5, -13.5, 0), V(-7.5, -13.5, 0)),  # 7
], False)
sketch12.addConstraint([
    Sketcher.Constraint("Coincident", 0, 2, 1, 1),
    Sketcher.Constraint("Coincident", 1, 2, 2, 1),
    Sketcher.Constraint("Coincident", 2, 2, 3, 1),
    Sketcher.Constraint("Coincident", 3, 2, 0, 1),
    Sketcher.Constraint("Coincident", 4, 2, 5, 1),
    Sketcher.Constraint("Coincident", 5, 2, 6, 1),
    Sketcher.Constraint("Coincident", 6, 2, 7, 1),
    Sketcher.Constraint("Coincident", 7, 2, 4, 1),
    Sketcher.Constraint("Vertical", 0),
    Sketcher.Constraint("Horizontal", 1),
    Sketcher.Constraint("Vertical", 2),
    Sketcher.Constraint("Horizontal", 3),
    Sketcher.Constraint("Vertical", 4),
    Sketcher.Constraint("Horizontal", 5),
    Sketcher.Constraint("Vertical", 6),
    Sketcher.Constraint("Horizontal", 7),
    Sketcher.Constraint("Symmetric", 2, 2, 4, 2, -1, 1),
    Sketcher.Constraint("Symmetric", 0, 2, 6, 2, -1, 1),
    Sketcher.Constraint("Vertical", 3, 2, 4, 2),
    Sketcher.Constraint("DistanceX", 1, 1, 1, 2, 15.0),
    Sketcher.Constraint("DistanceY", 0, 2, 0, 1, 6.0),
    Sketcher.Constraint("DistanceY", 4, 2, 0, 2, 33.0),
])
sketch12.setExpression("Constraints[19]", "Params.sketch12_width")
sketch12.setExpression("Constraints[20]", "Params.sketch12_height")
pocket6 = body.newObject("PartDesign::Pocket", "Pocket005")
pocket6.Profile = sketch12
pocket6.setExpression("Length", "Params.pocket6_length")

doc.recompute()
